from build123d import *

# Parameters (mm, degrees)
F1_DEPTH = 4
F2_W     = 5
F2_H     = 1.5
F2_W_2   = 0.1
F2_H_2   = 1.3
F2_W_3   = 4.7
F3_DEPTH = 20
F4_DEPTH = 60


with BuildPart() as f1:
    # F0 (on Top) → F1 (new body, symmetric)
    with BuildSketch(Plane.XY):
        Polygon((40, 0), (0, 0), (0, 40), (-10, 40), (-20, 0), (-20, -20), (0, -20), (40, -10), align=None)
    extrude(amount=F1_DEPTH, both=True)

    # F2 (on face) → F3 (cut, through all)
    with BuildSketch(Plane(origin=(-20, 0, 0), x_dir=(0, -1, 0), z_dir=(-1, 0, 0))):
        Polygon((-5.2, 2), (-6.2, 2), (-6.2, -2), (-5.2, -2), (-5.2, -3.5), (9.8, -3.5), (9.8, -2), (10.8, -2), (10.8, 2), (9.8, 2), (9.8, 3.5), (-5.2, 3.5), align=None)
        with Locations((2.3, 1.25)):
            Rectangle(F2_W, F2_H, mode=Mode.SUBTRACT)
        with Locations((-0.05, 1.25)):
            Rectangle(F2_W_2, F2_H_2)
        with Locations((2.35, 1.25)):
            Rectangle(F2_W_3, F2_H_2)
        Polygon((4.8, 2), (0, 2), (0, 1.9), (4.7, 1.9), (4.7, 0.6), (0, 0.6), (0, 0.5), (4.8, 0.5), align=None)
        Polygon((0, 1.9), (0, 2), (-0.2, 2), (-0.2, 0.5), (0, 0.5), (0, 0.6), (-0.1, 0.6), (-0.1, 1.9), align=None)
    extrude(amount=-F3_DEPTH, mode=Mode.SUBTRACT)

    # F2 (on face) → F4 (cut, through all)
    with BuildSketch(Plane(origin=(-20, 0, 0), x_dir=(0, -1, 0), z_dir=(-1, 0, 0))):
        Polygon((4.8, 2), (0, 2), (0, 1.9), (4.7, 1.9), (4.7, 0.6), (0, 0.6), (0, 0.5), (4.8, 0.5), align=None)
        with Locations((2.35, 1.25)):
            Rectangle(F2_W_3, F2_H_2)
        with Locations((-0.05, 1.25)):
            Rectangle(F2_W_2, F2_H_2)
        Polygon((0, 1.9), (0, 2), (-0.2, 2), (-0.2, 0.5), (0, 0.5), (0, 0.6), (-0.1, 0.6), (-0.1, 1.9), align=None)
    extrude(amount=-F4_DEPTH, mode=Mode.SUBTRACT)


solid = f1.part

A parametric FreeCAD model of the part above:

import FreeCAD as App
import Part
import Sketcher

V = App.Vector


def add_polygon(sketch, points):
    """Adds a closed chain of lines whose ends are joined by coincident constraints."""
    first, n = sketch.GeometryCount, len(points)
    for a, b in zip(points, points[1:] + points[:1]):
        sketch.addGeometry(Part.LineSegment(App.Vector(*a, 0), App.Vector(*b, 0)), False)
    for i in range(n):
        sketch.addConstraint(Sketcher.Constraint("Coincident", first + i, 2, first + (i + 1) % n, 1))

doc = App.newDocument("Part")
params = doc.addObject("Spreadsheet::Sheet", "Params")
for row, (alias, value) in enumerate([
    ("sketch1_width", "40 mm"),
    ("sketch1_width2", "10 mm"),
    ("sketch1_width3", "20 mm"),
    ("pad1_length", "8 mm"),
    ("sketch2_width", "1 mm"),
    ("sketch2_width2", "15 mm"),
    ("sketch2_height", "4 mm"),
    ("sketch2_height2", "1.5 mm"),
    ("pocket1_length", "20 mm"),
    ("sketch3_width", "5 mm"),
    ("sketch3_height", "1.5 mm"),
], start=1):
    params.set(f"A{row}", alias)
    params.set(f"B{row}", "=" + value)
    params.setAlias(f"B{row}", alias)

body = doc.addObject("PartDesign::Body", "Body")

sketch1 = body.newObject("Sketcher::SketchObject", "Sketch")
sketch1.AttachmentSupport = (doc.getObject("XY_Plane"), [""])
sketch1.MapMode = "FlatFace"
add_polygon(sketch1, [(40, 0), (0, 0), (0, 40), (-10, 40), (-20, 0), (-20, -20), (0, -20), (40, -10)])
sketch1.addConstraint([
    Sketcher.Constraint("Horizontal", 0),
    Sketcher.Constraint("Vertical", 1),
    Sketcher.Constraint("Horizontal", 2),
    Sketcher.Constraint("Vertical", 4),
    Sketcher.Constraint("Horizontal", 5),
    Sketcher.Constraint("Vertical", 7),
    Sketcher.Constraint("Coincident", 0, 2, -1, 1),
    Sketcher.Constraint("PointOnObject", 3, 2, -1),
    Sketcher.Constraint("PointOnObject", 5, 2, -2),
    Sketcher.Constraint("Equal", 0, 1),
    Sketcher.Constraint("Equal", 5, 4),
    Sketcher.Constraint("Equal", 2, 7),
    Sketcher.Constraint("DistanceX", 0, 2, 0, 1, 40.0),
    Sketcher.Constraint("DistanceX", 2, 2, 2, 1, 10.0),
    Sketcher.Constraint("DistanceX", 5, 1, 5, 2, 20.0),
])
sketch1.setExpression("Constraints[20]", "Params.sketch1_width")
sketch1.setExpression("Constraints[21]", "Params.sketch1_width2")
sketch1.setExpression("Constraints[22]", "Params.sketch1_width3")
pad1 = body.newObject("PartDesign::Pad", "Pad")
pad1.Profile = sketch1
pad1.setExpression("Length", "Params.pad1_length")
pad1.Midplane = True

sketch2 = body.newObject("Sketcher::SketchObject", "Sketch001")
sketch2.AttachmentSupport = (doc.getObject("YZ_Plane"), [""])
sketch2.MapMode = "FlatFace"
sketch2.AttachmentOffset = App.Placement(V(0, 0, -20), App.Rotation())
add_polygon(sketch2, [(5.2, 2), (6.2, 2), (6.2, -2), (5.2, -2), (5.2, -3.5), (-9.8, -3.5), (-9.8, -2), (-10.8, -2), (-10.8, 2), (-9.8, 2), (-9.8, 3.5), (5.2, 3.5)])
sketch2.addConstraint([
    Sketcher.Constraint("Horizontal", 0),
    Sketcher.Constraint("Vertical", 1),
    Sketcher.Constraint("Horizontal", 2),
    Sketcher.Constraint("Vertical", 3),
    Sketcher.Constraint("Horizontal", 4),
    Sketcher.Constraint("Vertical", 5),
    Sketcher.Constraint("Horizontal", 6),
    Sketcher.Constraint("Vertical", 7),
    Sketcher.Constraint("Horizontal", 8),
    Sketcher.Constraint("Vertical", 9),
    Sketcher.Constraint("Horizontal", 10),
    Sketcher.Constraint("Vertical", 11),
    Sketcher.Constraint("Symmetric", 5, 2, 8, 2, -1),
    Sketcher.Constraint("Symmetric", 3, 2, 10, 2, -1),
    Sketcher.Constraint("Horizontal", 2, 2, 5, 2),
    Sketcher.Constraint("Horizontal", 0, 2, 7, 2),
    Sketcher.Constraint("Equal", 2, 6),
    Sketcher.Constraint("DistanceX", 0, 1, 0, 2, 1.0),
    Sketcher.Constraint("DistanceX", 4, 2, 4, 1, 15.0),
    Sketcher.Constraint("DistanceY", 1, 2, 1, 1, 4.0),
    Sketcher.Constraint("DistanceY", 3, 2, 3, 1, 1.5),
    Sketcher.Constraint("DistanceX", -1, 1, 0, 2, 6.2),
])
sketch2.setExpression("Constraints[29]", "Params.sketch2_width")
sketch2.setExpression("Constraints[30]", "Params.sketch2_width2")
sketch2.setExpression("Constraints[31]", "Params.sketch2_height")
sketch2.setExpression("Constraints[32]", "Params.sketch2_height2")
pocket1 = body.newObject("PartDesign::Pocket", "Pocket")
pocket1.Profile = sketch2
pocket1.setExpression("Length", "Params.pocket1_length")
pocket1.Reversed = True

sketch3 = body.newObject("Sketcher::SketchObject", "Sketch002")
sketch3.AttachmentSupport = (doc.getObject("YZ_Plane"), [""])
sketch3.MapMode = "FlatFace"
sketch3.AttachmentOffset = App.Placement(V(0, 0, -20), App.Rotation())
add_polygon(sketch3, [(-4.8, 2), (0.2, 2), (0.2, 0.5), (-4.8, 0.5)])
sketch3.addConstraint([
    Sketcher.Constraint("Horizontal", 0),
    Sketcher.Constraint("Vertical", 1),
    Sketcher.Constraint("Horizontal", 2),
    Sketcher.Constraint("Vertical", 3),
    Sketcher.Constraint("DistanceX", 0, 1, 0, 2, 5.0),
    Sketcher.Constraint("DistanceY", 1, 2, 1, 1, 1.5),
    Sketcher.Constraint("DistanceY", -1, 1, 0, 2, 2.0),
    Sketcher.Constraint("DistanceX", -1, 1, 0, 2, 0.2),
])
sketch3.setExpression("Constraints[8]", "Params.sketch3_width")
sketch3.setExpression("Constraints[9]", "Params.sketch3_height")
pocket2 = body.newObject("PartDesign::Pocket", "Pocket001")
pocket2.Profile = sketch3
pocket2.Type = "ThroughAll"
pocket2.Reversed = True

doc.recompute()
